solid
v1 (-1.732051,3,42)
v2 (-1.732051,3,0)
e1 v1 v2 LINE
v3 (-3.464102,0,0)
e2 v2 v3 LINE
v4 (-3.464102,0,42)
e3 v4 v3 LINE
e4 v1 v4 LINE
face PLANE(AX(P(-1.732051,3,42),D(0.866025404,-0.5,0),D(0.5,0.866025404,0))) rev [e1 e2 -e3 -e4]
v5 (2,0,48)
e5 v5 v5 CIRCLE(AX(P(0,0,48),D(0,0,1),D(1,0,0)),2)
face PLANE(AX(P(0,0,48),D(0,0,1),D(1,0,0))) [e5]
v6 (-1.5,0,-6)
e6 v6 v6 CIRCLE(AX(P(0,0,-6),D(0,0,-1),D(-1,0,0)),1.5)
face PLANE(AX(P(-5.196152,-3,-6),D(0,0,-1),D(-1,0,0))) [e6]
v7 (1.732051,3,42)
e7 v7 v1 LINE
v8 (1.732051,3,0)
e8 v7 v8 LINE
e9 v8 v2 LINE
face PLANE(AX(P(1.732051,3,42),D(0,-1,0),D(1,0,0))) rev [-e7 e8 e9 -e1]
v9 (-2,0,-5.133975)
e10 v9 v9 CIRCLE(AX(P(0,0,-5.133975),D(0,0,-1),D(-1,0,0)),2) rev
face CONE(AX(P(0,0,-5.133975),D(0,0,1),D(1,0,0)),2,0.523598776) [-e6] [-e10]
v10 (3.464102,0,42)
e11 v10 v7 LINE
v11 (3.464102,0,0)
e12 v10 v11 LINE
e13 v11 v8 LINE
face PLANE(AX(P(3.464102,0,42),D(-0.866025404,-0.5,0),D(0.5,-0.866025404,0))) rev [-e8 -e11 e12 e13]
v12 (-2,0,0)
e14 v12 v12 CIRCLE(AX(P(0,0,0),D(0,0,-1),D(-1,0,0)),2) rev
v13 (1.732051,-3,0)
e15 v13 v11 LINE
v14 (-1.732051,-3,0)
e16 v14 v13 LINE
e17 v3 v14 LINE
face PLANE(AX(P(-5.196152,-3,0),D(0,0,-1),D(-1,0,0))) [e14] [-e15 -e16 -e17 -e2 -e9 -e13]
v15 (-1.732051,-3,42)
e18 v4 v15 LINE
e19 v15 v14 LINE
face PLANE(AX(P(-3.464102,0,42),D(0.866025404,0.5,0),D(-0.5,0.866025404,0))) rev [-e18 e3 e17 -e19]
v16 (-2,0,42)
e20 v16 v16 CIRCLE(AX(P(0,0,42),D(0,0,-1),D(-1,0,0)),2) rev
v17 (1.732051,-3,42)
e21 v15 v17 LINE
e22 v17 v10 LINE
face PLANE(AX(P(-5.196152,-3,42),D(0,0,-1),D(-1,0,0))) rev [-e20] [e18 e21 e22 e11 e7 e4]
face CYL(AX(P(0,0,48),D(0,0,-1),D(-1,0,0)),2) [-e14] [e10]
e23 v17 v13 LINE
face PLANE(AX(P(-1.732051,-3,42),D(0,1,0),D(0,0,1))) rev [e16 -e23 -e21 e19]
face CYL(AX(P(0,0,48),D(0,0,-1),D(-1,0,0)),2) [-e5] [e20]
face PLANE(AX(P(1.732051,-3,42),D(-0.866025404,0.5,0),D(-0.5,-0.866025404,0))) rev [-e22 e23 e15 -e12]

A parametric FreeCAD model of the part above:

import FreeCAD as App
import Part
import Sketcher
from FreeCAD import Vector
Q = App.Units.Quantity


def edges_at(feature, points):
    """Names of the edges that pass closest to the given points."""
    edges = feature.Shape.Edges
    near = lambda p: min(range(len(edges)), key=lambda i: edges[i].distToShape(Part.Vertex(*p))[0])
    return sorted({f"Edge{near(p) + 1}" for p in points})

doc = App.newDocument("Part")
body = doc.addObject("PartDesign::Body", "Body")

sketch1 = body.newObject("Sketcher::SketchObject", "Sketch")
sketch1.AttachmentSupport = (doc.getObject("XY_Plane"), [""])
sketch1.MapMode = "FlatFace"
sketch1.addGeometry(Part.LineSegment(Vector(1.732051, -3, 0), Vector(3.464102, 0, 0)), False)
sketch1.addGeometry(Part.LineSegment(Vector(3.464102, 0, 0), Vector(1.732051, 3, 0)), False)
sketch1.addGeometry(Part.LineSegment(Vector(1.732051, 3, 0), Vector(-1.732051, 3, 0)), False)
sketch1.addGeometry(Part.LineSegment(Vector(-1.732051, 3, 0), Vector(-3.464102, 0, 0)), False)
sketch1.addGeometry(Part.LineSegment(Vector(-3.464102, 0, 0), Vector(-1.732051, -3, 0)), False)
sketch1.addGeometry(Part.LineSegment(Vector(-1.732051, -3, 0), Vector(1.732051, -3, 0)), False)
sketch1.addConstraint(Sketcher.Constraint("Coincident", 0, 2, 1, 1))
sketch1.addConstraint(Sketcher.Constraint("Coincident", 1, 2, 2, 1))
sketch1.addConstraint(Sketcher.Constraint("Coincident", 2, 2, 3, 1))
sketch1.addConstraint(Sketcher.Constraint("Coincident", 3, 2, 4, 1))
sketch1.addConstraint(Sketcher.Constraint("Coincident", 4, 2, 5, 1))
sketch1.addConstraint(Sketcher.Constraint("Coincident", 5, 2, 0, 1))
sketch1.addConstraint(Sketcher.Constraint("Horizontal", 2))
sketch1.addConstraint(Sketcher.Constraint("Horizontal", 5))
sketch1.addConstraint(Sketcher.Constraint("Symmetric", 0, 2, 3, 2, -1, 1))
sketch1.addConstraint(Sketcher.Constraint("Symmetric", 1, 2, 4, 2, -1, 1))
sketch1.addConstraint(Sketcher.Constraint("PointOnObject", 0, 2, -1))
sketch1.addConstraint(Sketcher.Constraint("Parallel", 0, 3))
sketch1.addConstraint(Sketcher.Constraint("Vertical", 2, 2, 4, 2))
sketch1.addConstraint(Sketcher.Constraint("Angle", 0, Q("60 deg")))
sketch1.addConstraint(Sketcher.Constraint("DistanceY", -1, 1, 1, 2, 3.0))
sketch1.addConstraint(Sketcher.Constraint("DistanceX", 2, 2, 2, 1, 3.464102))
pad1 = body.newObject("PartDesign::Pad", "Pad")
pad1.Profile = sketch1
pad1.Length = 42

sketch2 = body.newObject("Sketcher::SketchObject", "Sketch001")
sketch2.AttachmentSupport = (doc.getObject("XY_Plane"), [""])
sketch2.MapMode = "FlatFace"
sketch2.AttachmentOffset = App.Placement(Vector(0, 0, 42), App.Rotation())
sketch2.addGeometry(Part.Circle(Vector(0, 0, 0), Vector(0, 0, 1), 2), False)
sketch2.addConstraint(Sketcher.Constraint("Coincident", 0, 3, -1, 1))
sketch2.addConstraint(Sketcher.Constraint("Diameter", 0, 4.0))
pad2 = body.newObject("PartDesign::Pad", "Pad001")
pad2.Profile = sketch2
pad2.Type = "TwoLengths"
pad2.Length = 6
pad2.Length2 = 48
doc.recompute()

chamfer = body.newObject("PartDesign::Chamfer", "Chamfer")
chamfer.Base = (pad2, edges_at(pad2, [(2, 0, -6)]))
chamfer.ChamferType = "Two distances"
chamfer.Size = 0.5
chamfer.Size2 = 0.866025
chamfer.FlipDirection = True

doc.recompute()
